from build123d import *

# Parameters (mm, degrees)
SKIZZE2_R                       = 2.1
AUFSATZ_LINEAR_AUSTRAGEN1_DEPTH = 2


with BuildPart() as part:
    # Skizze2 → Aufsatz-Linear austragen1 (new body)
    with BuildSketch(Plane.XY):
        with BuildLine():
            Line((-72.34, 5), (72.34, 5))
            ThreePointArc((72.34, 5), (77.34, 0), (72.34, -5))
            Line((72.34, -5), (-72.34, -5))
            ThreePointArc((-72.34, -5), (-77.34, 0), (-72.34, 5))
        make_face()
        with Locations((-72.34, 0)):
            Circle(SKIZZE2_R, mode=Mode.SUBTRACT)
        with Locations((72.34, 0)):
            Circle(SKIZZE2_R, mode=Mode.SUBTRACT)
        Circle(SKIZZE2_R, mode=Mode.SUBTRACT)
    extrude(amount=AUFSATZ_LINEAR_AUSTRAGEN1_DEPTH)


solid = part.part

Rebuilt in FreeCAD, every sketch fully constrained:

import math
import FreeCAD as App
import Part
import Sketcher

V = App.Vector
Q = App.Units.Quantity

doc = App.newDocument("Part")
body = doc.addObject("PartDesign::Body", "Body")

sketch1 = body.newObject("Sketcher::SketchObject", "Sketch")
sketch1.AttachmentSupport = (doc.getObject("XY_Plane"), [""])
sketch1.MapMode = "FlatFace"
sketch1.addGeometry(Part.LineSegment(V(72.3, 5, 0), V(-72.3, 5, 0)), False)
sketch1.addGeometry(Part.ArcOfCircle(Part.Circle(V(-72.3, 0, 0), V(0, 0, 1), 5), math.radians(90), math.radians(270)), False)
sketch1.addGeometry(Part.LineSegment(V(-72.3, -5, 0), V(72.3, -5, 0)), False)
sketch1.addGeometry(Part.ArcOfCircle(Part.Circle(V(72.3, 0, 0), V(0, 0, 1), 5), math.radians(-90), math.radians(90)), False)
sketch1.addGeometry(Part.Circle(V(72.3, 0, 0), V(0, 0, 1), 2.1), False)
sketch1.addGeometry(Part.Circle(V(0, 0, 0), V(0, 0, 1), 2.1), False)
sketch1.addGeometry(Part.Circle(V(-72.3, 0, 0), V(0, 0, 1), 2.1), False)
sketch1.addConstraint(Sketcher.Constraint("Tangent", 0, 2, 1, 1))
sketch1.addConstraint(Sketcher.Constraint("Tangent", 1, 2, 2, 1))
sketch1.addConstraint(Sketcher.Constraint("Tangent", 2, 2, 3, 1))
sketch1.addConstraint(Sketcher.Constraint("Tangent", 3, 2, 0, 1))
sketch1.addConstraint(Sketcher.Constraint("Horizontal", 0))
sketch1.addConstraint(Sketcher.Constraint("Horizontal", 2))
sketch1.addConstraint(Sketcher.Constraint("Coincident", 5, 3, -1, 1))
sketch1.addConstraint(Sketcher.Constraint("Coincident", 4, 3, 3, 3))
sketch1.addConstraint(Sketcher.Constraint("Coincident", 6, 3, 1, 3))
sketch1.addConstraint(Sketcher.Constraint("Equal", 4, 5))
sketch1.addConstraint(Sketcher.Constraint("Equal", 5, 6))
sketch1.addConstraint(Sketcher.Constraint("Symmetric", 1, 3, 3, 3, -1, 1))
sketch1.addConstraint(Sketcher.Constraint("Radius", 1, Q("5 mm")))
sketch1.addConstraint(Sketcher.Constraint("Diameter", 4, Q("4.2 mm")))
sketch1.addConstraint(Sketcher.Constraint("DistanceX", 0, 2, 0, 1, Q("144.68 mm")))
pad1 = body.newObject("PartDesign::Pad", "Pad")
pad1.Profile = sketch1
pad1.Length = 2

doc.recompute()
